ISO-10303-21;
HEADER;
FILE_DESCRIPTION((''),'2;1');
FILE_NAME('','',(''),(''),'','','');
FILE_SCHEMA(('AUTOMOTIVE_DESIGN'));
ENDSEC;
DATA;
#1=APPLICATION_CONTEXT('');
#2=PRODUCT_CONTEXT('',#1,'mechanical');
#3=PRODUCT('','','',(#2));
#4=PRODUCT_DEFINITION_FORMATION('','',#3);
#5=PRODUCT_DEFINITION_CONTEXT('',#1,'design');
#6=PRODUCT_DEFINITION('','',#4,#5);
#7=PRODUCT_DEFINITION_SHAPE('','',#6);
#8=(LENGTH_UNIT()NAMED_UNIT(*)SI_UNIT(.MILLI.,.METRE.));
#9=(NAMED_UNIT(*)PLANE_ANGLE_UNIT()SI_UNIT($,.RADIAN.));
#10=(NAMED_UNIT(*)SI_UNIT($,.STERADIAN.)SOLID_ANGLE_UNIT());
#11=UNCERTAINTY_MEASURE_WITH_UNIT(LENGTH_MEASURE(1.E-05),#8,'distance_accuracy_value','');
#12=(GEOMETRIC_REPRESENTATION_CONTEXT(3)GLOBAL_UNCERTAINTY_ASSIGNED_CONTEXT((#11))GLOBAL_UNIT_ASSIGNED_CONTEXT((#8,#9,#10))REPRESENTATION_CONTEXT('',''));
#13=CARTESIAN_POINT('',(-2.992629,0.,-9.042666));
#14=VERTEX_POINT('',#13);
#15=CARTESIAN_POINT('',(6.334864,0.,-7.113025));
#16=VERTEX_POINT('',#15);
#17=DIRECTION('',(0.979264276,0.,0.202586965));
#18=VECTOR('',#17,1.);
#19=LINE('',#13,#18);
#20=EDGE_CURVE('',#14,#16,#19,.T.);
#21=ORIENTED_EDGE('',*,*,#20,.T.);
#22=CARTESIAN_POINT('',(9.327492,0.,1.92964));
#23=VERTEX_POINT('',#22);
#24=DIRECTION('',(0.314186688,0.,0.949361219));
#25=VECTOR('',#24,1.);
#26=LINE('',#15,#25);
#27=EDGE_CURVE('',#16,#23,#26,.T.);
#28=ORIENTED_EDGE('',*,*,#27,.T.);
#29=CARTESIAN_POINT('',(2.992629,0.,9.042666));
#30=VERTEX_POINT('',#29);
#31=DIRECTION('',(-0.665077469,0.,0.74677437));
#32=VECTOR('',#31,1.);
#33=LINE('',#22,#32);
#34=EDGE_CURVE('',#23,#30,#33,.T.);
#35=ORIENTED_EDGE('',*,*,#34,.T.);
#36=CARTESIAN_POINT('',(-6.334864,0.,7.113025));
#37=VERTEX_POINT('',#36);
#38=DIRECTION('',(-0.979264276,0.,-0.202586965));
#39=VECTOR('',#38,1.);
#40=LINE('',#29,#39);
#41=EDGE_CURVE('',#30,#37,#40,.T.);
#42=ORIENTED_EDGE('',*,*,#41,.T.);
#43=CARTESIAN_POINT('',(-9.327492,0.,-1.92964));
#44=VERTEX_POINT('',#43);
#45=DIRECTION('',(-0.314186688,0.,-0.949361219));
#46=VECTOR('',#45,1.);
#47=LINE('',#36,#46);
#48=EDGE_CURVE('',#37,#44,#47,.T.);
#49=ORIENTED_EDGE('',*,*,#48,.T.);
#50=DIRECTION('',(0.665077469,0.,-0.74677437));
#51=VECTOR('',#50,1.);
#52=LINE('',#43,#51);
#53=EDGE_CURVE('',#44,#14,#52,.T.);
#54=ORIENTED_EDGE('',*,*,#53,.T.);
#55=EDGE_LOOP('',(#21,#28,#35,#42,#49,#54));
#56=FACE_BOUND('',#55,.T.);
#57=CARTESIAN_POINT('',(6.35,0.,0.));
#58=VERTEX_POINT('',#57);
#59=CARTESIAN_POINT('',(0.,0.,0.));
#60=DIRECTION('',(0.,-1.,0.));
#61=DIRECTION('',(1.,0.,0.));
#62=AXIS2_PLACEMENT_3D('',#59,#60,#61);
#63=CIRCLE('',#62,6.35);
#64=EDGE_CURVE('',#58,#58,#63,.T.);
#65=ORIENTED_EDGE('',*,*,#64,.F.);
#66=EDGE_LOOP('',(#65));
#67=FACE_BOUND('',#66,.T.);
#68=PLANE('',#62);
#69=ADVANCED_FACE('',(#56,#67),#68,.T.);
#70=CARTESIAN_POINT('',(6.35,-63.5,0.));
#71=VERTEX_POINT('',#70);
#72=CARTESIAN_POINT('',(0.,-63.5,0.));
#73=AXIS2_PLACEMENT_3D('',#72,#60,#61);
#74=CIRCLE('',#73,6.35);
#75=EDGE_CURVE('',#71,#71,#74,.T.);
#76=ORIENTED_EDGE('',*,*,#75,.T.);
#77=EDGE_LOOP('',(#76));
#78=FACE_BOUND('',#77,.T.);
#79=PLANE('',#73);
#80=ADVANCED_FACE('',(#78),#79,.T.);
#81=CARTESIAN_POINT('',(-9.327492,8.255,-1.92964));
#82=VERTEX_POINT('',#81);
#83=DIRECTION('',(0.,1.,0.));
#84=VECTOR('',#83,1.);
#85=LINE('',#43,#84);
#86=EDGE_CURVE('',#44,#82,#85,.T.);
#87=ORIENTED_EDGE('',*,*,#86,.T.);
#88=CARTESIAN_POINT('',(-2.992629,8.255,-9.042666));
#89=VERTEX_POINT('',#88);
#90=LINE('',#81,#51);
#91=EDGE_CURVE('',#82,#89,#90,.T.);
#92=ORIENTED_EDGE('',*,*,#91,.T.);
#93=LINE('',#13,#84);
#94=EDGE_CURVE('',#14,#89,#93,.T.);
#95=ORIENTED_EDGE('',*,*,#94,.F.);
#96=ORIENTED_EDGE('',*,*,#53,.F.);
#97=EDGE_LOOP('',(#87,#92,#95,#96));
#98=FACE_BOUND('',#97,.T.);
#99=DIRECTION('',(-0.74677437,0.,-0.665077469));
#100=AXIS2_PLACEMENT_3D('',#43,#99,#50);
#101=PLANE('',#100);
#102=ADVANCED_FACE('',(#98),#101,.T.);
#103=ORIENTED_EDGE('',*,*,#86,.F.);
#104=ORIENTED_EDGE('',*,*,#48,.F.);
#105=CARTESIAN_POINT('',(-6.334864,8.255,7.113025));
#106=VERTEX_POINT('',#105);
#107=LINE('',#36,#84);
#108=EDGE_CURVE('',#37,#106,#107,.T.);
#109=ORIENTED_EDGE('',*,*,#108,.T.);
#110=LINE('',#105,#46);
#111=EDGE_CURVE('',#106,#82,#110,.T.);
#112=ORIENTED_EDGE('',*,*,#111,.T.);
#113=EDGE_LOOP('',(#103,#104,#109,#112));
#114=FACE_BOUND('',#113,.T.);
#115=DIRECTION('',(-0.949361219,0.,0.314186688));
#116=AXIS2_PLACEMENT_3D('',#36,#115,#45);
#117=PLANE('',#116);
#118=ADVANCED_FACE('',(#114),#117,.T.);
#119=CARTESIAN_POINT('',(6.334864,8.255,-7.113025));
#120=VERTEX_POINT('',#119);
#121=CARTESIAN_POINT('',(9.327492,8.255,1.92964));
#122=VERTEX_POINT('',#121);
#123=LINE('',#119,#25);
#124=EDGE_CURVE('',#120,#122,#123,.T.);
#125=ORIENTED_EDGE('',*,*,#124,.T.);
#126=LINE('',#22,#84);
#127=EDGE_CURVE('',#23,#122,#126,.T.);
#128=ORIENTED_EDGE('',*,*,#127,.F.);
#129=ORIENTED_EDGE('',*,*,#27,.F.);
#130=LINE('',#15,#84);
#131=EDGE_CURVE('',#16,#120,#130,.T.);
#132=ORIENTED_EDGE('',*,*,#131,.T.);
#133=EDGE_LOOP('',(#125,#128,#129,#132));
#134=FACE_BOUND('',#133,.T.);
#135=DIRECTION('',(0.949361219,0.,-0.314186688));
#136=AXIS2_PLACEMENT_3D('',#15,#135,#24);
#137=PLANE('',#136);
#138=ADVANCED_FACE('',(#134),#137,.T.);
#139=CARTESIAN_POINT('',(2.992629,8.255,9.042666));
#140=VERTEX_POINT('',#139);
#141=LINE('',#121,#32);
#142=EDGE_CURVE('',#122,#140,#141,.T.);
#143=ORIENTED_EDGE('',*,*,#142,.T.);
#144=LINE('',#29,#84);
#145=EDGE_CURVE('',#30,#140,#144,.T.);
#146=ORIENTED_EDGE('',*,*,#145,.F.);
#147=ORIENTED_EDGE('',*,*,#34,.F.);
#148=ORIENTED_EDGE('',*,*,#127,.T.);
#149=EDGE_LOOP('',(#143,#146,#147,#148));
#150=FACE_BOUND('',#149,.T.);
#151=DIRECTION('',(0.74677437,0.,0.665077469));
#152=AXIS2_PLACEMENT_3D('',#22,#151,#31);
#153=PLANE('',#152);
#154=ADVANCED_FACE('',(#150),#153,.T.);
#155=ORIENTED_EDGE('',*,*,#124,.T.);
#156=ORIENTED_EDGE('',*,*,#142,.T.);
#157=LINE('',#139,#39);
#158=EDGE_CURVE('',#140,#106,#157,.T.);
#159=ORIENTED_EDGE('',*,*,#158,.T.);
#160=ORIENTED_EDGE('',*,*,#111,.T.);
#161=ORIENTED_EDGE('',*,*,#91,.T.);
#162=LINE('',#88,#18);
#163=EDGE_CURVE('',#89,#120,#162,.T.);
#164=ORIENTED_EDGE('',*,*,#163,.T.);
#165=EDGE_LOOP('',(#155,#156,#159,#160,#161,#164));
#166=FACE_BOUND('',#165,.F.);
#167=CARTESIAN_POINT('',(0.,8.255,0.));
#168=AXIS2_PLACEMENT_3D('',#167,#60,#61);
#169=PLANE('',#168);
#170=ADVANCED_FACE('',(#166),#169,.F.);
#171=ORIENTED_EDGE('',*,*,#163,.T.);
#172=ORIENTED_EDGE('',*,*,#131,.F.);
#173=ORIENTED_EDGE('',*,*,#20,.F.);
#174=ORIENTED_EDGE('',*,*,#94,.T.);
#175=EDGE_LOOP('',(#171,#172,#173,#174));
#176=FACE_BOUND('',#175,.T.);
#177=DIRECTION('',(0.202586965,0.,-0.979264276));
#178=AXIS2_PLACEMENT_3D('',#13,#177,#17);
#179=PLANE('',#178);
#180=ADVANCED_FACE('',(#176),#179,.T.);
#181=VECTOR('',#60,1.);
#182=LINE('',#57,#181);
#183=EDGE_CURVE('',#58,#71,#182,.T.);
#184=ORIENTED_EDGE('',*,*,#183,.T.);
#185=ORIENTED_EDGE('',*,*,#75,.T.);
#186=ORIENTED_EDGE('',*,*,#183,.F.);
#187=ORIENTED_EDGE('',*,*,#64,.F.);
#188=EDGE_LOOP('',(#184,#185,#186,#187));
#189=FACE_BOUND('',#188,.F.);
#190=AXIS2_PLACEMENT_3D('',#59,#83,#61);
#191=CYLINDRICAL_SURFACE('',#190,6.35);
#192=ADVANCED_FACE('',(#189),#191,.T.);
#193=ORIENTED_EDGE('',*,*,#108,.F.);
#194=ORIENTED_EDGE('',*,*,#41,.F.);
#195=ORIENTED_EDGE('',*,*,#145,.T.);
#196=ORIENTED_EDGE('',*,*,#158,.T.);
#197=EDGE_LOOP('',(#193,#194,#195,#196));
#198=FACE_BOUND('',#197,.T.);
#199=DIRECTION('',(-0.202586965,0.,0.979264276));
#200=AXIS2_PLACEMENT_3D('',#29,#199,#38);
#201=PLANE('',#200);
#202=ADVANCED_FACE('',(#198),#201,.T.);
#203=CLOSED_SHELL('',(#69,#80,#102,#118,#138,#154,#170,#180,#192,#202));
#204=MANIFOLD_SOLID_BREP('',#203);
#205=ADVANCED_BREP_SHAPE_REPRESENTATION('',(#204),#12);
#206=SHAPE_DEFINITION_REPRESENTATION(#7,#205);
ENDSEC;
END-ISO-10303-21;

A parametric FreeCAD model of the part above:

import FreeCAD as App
import Part
import Sketcher

V = App.Vector
Q = App.Units.Quantity


def add_polygon(sketch, points):
    """Adds a closed chain of lines whose ends are joined by coincident constraints."""
    first, n = sketch.GeometryCount, len(points)
    for a, b in zip(points, points[1:] + points[:1]):
        sketch.addGeometry(Part.LineSegment(App.Vector(*a, 0), App.Vector(*b, 0)), False)
    for i in range(n):
        sketch.addConstraint(Sketcher.Constraint("Coincident", first + i, 2, first + (i + 1) % n, 1))

doc = App.newDocument("Part")
body = doc.addObject("PartDesign::Body", "Body")

sketch1 = body.newObject("Sketcher::SketchObject", "Sketch")
sketch1.AttachmentSupport = (doc.getObject("XZ_Plane"), [""])
sketch1.MapMode = "FlatFace"
sketch1.addGeometry(Part.Circle(V(0, 0, 0), V(0, 0, 1), 6), False)
sketch1.addConstraint([
    Sketcher.Constraint("Coincident", 0, 3, -1, 1),
    Sketcher.Constraint("Diameter", 0, Q("0.5 in")),
])
pad1 = body.newObject("PartDesign::Pad", "Pad")
pad1.Profile = sketch1
pad1.Length = Q("2.5 in")

sketch2 = body.newObject("Sketcher::SketchObject", "Sketch001")
sketch2.AttachmentSupport = (doc.getObject("XZ_Plane"), [""])
sketch2.MapMode = "FlatFace"
add_polygon(sketch2, [(-3, -9), (6, -7), (9, 2), (3, 9), (-6, 7), (-9, -2)])
sketch2.addConstraint([
    Sketcher.Constraint("Symmetric", 0, 2, 3, 2, -1, 1),
    Sketcher.Constraint("Symmetric", 1, 2, 4, 2, -1, 1),
    Sketcher.Constraint("Symmetric", 2, 2, 5, 2, -1, 1),
    Sketcher.Constraint("Equal", 0, 1),
    Sketcher.Constraint("Equal", 1, 2),
    Sketcher.Constraint("Distance", 0, Q("0.375 in")),
    Sketcher.Constraint("DistanceY", -1, 1, 1, 2, 1.92964),
    Sketcher.Constraint("DistanceX", -1, 1, 2, 2, 2.992629),
    Sketcher.Constraint("DistanceY", 0, 2, 2, 2, 16.155691),
])
pad2 = body.newObject("PartDesign::Pad", "Pad001")
pad2.Profile = sketch2
pad2.Length = Q("0.325 in")
pad2.Reversed = True

doc.recompute()
